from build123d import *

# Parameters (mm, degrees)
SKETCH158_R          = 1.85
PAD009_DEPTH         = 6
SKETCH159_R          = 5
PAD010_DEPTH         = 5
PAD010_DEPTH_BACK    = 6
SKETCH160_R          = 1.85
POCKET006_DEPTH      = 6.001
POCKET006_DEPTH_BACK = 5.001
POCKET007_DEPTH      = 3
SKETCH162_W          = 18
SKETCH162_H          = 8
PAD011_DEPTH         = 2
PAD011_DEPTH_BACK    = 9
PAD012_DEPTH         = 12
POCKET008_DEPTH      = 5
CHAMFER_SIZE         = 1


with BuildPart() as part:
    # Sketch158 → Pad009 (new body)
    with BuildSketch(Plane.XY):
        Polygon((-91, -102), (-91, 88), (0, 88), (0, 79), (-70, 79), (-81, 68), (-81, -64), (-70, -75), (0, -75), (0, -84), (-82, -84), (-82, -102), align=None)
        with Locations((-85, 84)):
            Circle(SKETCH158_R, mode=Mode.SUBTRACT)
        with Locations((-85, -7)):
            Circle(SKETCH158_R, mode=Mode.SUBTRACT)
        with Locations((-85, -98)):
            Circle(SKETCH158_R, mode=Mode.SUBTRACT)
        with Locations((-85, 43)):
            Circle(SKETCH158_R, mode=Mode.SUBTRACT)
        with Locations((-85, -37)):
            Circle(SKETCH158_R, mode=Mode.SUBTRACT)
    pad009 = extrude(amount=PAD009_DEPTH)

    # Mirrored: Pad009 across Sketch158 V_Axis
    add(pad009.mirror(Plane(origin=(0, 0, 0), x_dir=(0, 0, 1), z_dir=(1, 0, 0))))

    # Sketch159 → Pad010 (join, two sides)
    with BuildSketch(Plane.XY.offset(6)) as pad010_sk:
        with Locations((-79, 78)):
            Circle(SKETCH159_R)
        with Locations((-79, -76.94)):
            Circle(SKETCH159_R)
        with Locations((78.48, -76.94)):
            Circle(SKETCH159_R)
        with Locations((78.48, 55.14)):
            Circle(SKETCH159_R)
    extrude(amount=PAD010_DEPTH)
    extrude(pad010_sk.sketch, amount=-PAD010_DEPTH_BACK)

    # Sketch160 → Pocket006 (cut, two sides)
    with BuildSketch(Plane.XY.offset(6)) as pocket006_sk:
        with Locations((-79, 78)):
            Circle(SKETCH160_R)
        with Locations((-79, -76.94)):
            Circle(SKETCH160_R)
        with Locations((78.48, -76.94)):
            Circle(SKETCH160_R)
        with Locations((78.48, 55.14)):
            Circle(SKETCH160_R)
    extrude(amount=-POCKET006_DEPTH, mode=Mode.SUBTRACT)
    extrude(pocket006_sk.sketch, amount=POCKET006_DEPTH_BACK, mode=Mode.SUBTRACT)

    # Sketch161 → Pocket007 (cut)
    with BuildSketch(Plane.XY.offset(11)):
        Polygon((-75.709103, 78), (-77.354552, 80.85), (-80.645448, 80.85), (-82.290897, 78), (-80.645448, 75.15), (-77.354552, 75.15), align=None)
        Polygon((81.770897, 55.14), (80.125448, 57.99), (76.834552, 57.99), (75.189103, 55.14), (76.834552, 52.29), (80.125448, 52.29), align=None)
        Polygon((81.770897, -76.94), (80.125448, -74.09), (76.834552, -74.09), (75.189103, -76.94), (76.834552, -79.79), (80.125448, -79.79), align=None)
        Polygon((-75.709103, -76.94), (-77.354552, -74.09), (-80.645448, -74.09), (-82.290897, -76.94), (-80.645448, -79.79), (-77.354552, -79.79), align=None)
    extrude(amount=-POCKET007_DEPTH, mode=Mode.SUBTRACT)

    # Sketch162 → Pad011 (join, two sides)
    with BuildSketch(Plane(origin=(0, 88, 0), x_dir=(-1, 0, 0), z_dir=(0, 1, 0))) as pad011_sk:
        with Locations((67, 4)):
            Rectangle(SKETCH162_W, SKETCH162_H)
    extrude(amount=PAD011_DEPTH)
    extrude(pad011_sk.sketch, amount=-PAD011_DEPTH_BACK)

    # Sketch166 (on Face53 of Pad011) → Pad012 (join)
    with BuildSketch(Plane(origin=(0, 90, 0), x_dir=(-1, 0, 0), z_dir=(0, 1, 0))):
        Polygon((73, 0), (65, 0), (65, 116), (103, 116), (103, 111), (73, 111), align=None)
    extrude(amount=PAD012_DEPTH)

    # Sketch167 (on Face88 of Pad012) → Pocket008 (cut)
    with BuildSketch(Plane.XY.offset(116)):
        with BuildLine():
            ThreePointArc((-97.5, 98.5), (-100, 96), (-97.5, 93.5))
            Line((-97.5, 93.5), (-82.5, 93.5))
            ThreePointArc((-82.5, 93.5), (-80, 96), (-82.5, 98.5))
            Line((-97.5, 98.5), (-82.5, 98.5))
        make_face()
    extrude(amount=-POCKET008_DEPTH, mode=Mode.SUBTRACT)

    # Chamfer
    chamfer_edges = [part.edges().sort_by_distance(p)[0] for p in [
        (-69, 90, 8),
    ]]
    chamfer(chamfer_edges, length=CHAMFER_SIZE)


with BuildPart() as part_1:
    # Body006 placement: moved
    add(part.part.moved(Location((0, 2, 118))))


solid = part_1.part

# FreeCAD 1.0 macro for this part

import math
import FreeCAD as App
import Part
import Sketcher
from FreeCAD import Vector
Q = App.Units.Quantity


def edges_at(feature, points):
    """Names of the edges that pass closest to the given points."""
    edges = feature.Shape.Edges
    near = lambda p: min(range(len(edges)), key=lambda i: edges[i].distToShape(Part.Vertex(*p))[0])
    return sorted({f"Edge{near(p) + 1}" for p in points})

doc = App.newDocument("Part")
body = doc.addObject("PartDesign::Body", "Body")

sketch1 = doc.addObject("Sketcher::SketchObject", "Sketch")
body.addObject(sketch1)
sketch1.AttachmentSupport = (doc.XY_Plane, [""])
sketch1.MapMode = "FlatFace"
sketch1.addGeometry(Part.LineSegment(Vector(-91, 88, 0), Vector(-91, -102, 0)), False)
sketch1.addGeometry(Part.LineSegment(Vector(-91, -102, 0), Vector(-82, -102, 0)), False)
sketch1.addGeometry(Part.LineSegment(Vector(-82, -102, 0), Vector(-82, -84, 0)), False)
sketch1.addGeometry(Part.LineSegment(Vector(-82, -84, 0), Vector(0, -84, 0)), False)
sketch1.addGeometry(Part.LineSegment(Vector(0, -84, 0), Vector(0, -75, 0)), False)
sketch1.addGeometry(Part.LineSegment(Vector(0, -75, 0), Vector(-70, -75, 0)), False)
sketch1.addGeometry(Part.LineSegment(Vector(-70, -75, 0), Vector(-81, -64, 0)), False)
sketch1.addGeometry(Part.LineSegment(Vector(-81, -64, 0), Vector(-81, 68, 0)), False)
sketch1.addGeometry(Part.LineSegment(Vector(-81, 68, 0), Vector(-70, 79, 0)), False)
sketch1.addGeometry(Part.LineSegment(Vector(-70, 79, 0), Vector(0, 79, 0)), False)
sketch1.addGeometry(Part.LineSegment(Vector(0, 79, 0), Vector(0, 88, 0)), False)
sketch1.addGeometry(Part.LineSegment(Vector(0, 88, 0), Vector(-91, 88, 0)), False)
sketch1.addGeometry(Part.Circle(Vector(-85, -98, 0), Vector(0, 0, 1), 1.9), False)
sketch1.addGeometry(Part.Circle(Vector(-85, -37, 0), Vector(0, 0, 1), 1.9), False)
sketch1.addGeometry(Part.Circle(Vector(-85, -7, 0), Vector(0, 0, 1), 1.9), False)
sketch1.addGeometry(Part.Circle(Vector(-85, 43, 0), Vector(0, 0, 1), 1.9), False)
sketch1.addGeometry(Part.Circle(Vector(-85, 84, 0), Vector(0, 0, 1), 1.9), False)
sketch1.addConstraint(Sketcher.Constraint("Coincident", 0, 2, 1, 1))
sketch1.addConstraint(Sketcher.Constraint("Coincident", 1, 2, 2, 1))
sketch1.addConstraint(Sketcher.Constraint("Coincident", 2, 2, 3, 1))
sketch1.addConstraint(Sketcher.Constraint("Coincident", 3, 2, 4, 1))
sketch1.addConstraint(Sketcher.Constraint("Coincident", 4, 2, 5, 1))
sketch1.addConstraint(Sketcher.Constraint("Coincident", 5, 2, 6, 1))
sketch1.addConstraint(Sketcher.Constraint("Coincident", 6, 2, 7, 1))
sketch1.addConstraint(Sketcher.Constraint("Coincident", 7, 2, 8, 1))
sketch1.addConstraint(Sketcher.Constraint("Coincident", 8, 2, 9, 1))
sketch1.addConstraint(Sketcher.Constraint("Coincident", 9, 2, 10, 1))
sketch1.addConstraint(Sketcher.Constraint("Coincident", 10, 2, 11, 1))
sketch1.addConstraint(Sketcher.Constraint("Coincident", 11, 2, 0, 1))
sketch1.addConstraint(Sketcher.Constraint("Vertical", 0))
sketch1.addConstraint(Sketcher.Constraint("Horizontal", 1))
sketch1.addConstraint(Sketcher.Constraint("Vertical", 2))
sketch1.addConstraint(Sketcher.Constraint("Horizontal", 3))
sketch1.addConstraint(Sketcher.Constraint("Vertical", 4))
sketch1.addConstraint(Sketcher.Constraint("Horizontal", 5))
sketch1.addConstraint(Sketcher.Constraint("Vertical", 7))
sketch1.addConstraint(Sketcher.Constraint("Horizontal", 9))
sketch1.addConstraint(Sketcher.Constraint("Vertical", 10))
sketch1.addConstraint(Sketcher.Constraint("Horizontal", 11))
sketch1.addConstraint(Sketcher.Constraint("Equal", 12, 13))
sketch1.addConstraint(Sketcher.Constraint("Equal", 13, 14))
sketch1.addConstraint(Sketcher.Constraint("Equal", 14, 15))
sketch1.addConstraint(Sketcher.Constraint("Equal", 15, 16))
sketch1.addConstraint(Sketcher.Constraint("PointOnObject", 3, 2, -2))
sketch1.addConstraint(Sketcher.Constraint("PointOnObject", 9, 2, -2))
sketch1.addConstraint(Sketcher.Constraint("Perpendicular", 6, 8))
sketch1.addConstraint(Sketcher.Constraint("Vertical", 12, 3, 13, 3))
sketch1.addConstraint(Sketcher.Constraint("Vertical", 13, 3, 14, 3))
sketch1.addConstraint(Sketcher.Constraint("Vertical", 14, 3, 15, 3))
sketch1.addConstraint(Sketcher.Constraint("Vertical", 15, 3, 16, 3))
sketch1.addConstraint(Sketcher.Constraint("Vertical", 5, 2, 8, 2))
sketch1.addConstraint(Sketcher.Constraint("Equal", 1, 4))
sketch1.addConstraint(Sketcher.Constraint("Equal", 4, 10))
sketch1.addConstraint(Sketcher.Constraint("Equal", 6, 8))
sketch1.addConstraint(Sketcher.Constraint("Diameter", 12, 3.7))
sketch1.addConstraint(Sketcher.Constraint("DistanceX", 1, 1, 1, 2, 9.0))
sketch1.addConstraint(Sketcher.Constraint("DistanceX", 3, 1, 3, 2, 82.0))
sketch1.addConstraint(Sketcher.Constraint("DistanceX", 5, 2, 5, 1, 70.0))
sketch1.addConstraint(Sketcher.Constraint("DistanceY", 0, 2, 0, 1, 190.0))
sketch1.addConstraint(Sketcher.Constraint("DistanceY", 2, 1, 2, 2, 18.0))
sketch1.addConstraint(Sketcher.Constraint("DistanceY", 7, 1, 7, 2, 132.0))
sketch1.addConstraint(Sketcher.Constraint("DistanceX", 12, 3, -1, 1, 85.0))
sketch1.addConstraint(Sketcher.Constraint("DistanceY", 12, 3, -1, 1, 98.0))
sketch1.addConstraint(Sketcher.Constraint("DistanceY", 13, 3, -1, 1, 37.0))
sketch1.addConstraint(Sketcher.Constraint("DistanceY", 14, 3, -1, 1, 7.0))
sketch1.addConstraint(Sketcher.Constraint("DistanceY", -1, 1, 15, 3, 43.0))
sketch1.addConstraint(Sketcher.Constraint("DistanceY", -1, 1, 16, 3, 84.0))
sketch1.addConstraint(Sketcher.Constraint("DistanceY", 0, 2, -1, 1, 102.0))
pad1 = doc.addObject("PartDesign::Pad", "Pad")
body.addObject(pad1)
pad1.Profile = sketch1
pad1.Length = 6
doc.recompute()

mirrored = doc.addObject("PartDesign::Mirrored", "Mirrored")
body.addObject(mirrored)
mirrored.Originals = [pad1]
mirrored.MirrorPlane = (doc.YZ_Plane, [""])
body.Tip = mirrored

sketch2 = doc.addObject("Sketcher::SketchObject", "Sketch001")
body.addObject(sketch2)
sketch2.AttachmentSupport = (doc.XY_Plane, [""])
sketch2.MapMode = "FlatFace"
sketch2.AttachmentOffset = App.Placement(Vector(0, 0, 6), App.Rotation())
sketch2.addGeometry(Part.Circle(Vector(-79, 78, 0), Vector(0, 0, 1), 5), False)
sketch2.addGeometry(Part.Circle(Vector(-79, -77, 0), Vector(0, 0, 1), 5), False)
sketch2.addGeometry(Part.Circle(Vector(78, -77, 0), Vector(0, 0, 1), 5), False)
sketch2.addGeometry(Part.Circle(Vector(78, 55, 0), Vector(0, 0, 1), 5), False)
sketch2.addConstraint(Sketcher.Constraint("Equal", 0, 1))
sketch2.addConstraint(Sketcher.Constraint("Equal", 1, 2))
sketch2.addConstraint(Sketcher.Constraint("Equal", 2, 3))
sketch2.addConstraint(Sketcher.Constraint("Horizontal", 1, 3, 2, 3))
sketch2.addConstraint(Sketcher.Constraint("Vertical", 0, 3, 1, 3))
sketch2.addConstraint(Sketcher.Constraint("Vertical", 2, 3, 3, 3))
sketch2.addConstraint(Sketcher.Constraint("Diameter", 0, 10.0))
sketch2.addConstraint(Sketcher.Constraint("DistanceX", 0, 3, -1, 1, 79.0))
sketch2.addConstraint(Sketcher.Constraint("DistanceY", -1, 1, 0, 3, 78.0))
sketch2.addConstraint(Sketcher.Constraint("DistanceY", 1, 3, -1, 1, 76.94))
sketch2.addConstraint(Sketcher.Constraint("DistanceX", -1, 1, 2, 3, 78.48))
sketch2.addConstraint(Sketcher.Constraint("DistanceY", -1, 1, 3, 3, 55.14))
pad2 = doc.addObject("PartDesign::Pad", "Pad001")
body.addObject(pad2)
pad2.Profile = sketch2
pad2.Type = "TwoLengths"
pad2.Length = 5
pad2.Length2 = 6

sketch3 = doc.addObject("Sketcher::SketchObject", "Sketch002")
body.addObject(sketch3)
sketch3.AttachmentSupport = (doc.XY_Plane, [""])
sketch3.MapMode = "FlatFace"
sketch3.AttachmentOffset = App.Placement(Vector(0, 0, 6), App.Rotation())
sketch3.addGeometry(Part.Circle(Vector(-79, 78, 0), Vector(0, 0, 1), 1.9), False)
sketch3.addGeometry(Part.Circle(Vector(-79, -76.9, 0), Vector(0, 0, 1), 1.9), False)
sketch3.addGeometry(Part.Circle(Vector(78.5, -76.9, 0), Vector(0, 0, 1), 1.9), False)
sketch3.addGeometry(Part.Circle(Vector(78.5, 55.1, 0), Vector(0, 0, 1), 1.9), False)
sketch3.addConstraint(Sketcher.Constraint("Equal", 0, 1))
sketch3.addConstraint(Sketcher.Constraint("Equal", 1, 2))
sketch3.addConstraint(Sketcher.Constraint("Equal", 2, 3))
sketch3.addConstraint(Sketcher.Constraint("Horizontal", 1, 3, 2, 3))
sketch3.addConstraint(Sketcher.Constraint("Vertical", 0, 3, 1, 3))
sketch3.addConstraint(Sketcher.Constraint("Vertical", 2, 3, 3, 3))
sketch3.addConstraint(Sketcher.Constraint("Diameter", 0, 3.7))
sketch3.addConstraint(Sketcher.Constraint("DistanceX", 0, 3, -1, 1, 79.0))
sketch3.addConstraint(Sketcher.Constraint("DistanceY", -1, 1, 0, 3, 78.0))
sketch3.addConstraint(Sketcher.Constraint("DistanceY", 1, 3, -1, 1, 76.94))
sketch3.addConstraint(Sketcher.Constraint("DistanceX", -1, 1, 2, 3, 78.48))
sketch3.addConstraint(Sketcher.Constraint("DistanceY", -1, 1, 3, 3, 55.14))
pocket1 = doc.addObject("PartDesign::Pocket", "Pocket")
body.addObject(pocket1)
pocket1.Profile = sketch3
pocket1.Type = "ThroughAll"
pocket1.Midplane = True

sketch4 = doc.addObject("Sketcher::SketchObject", "Sketch003")
body.addObject(sketch4)
sketch4.AttachmentSupport = (doc.XY_Plane, [""])
sketch4.MapMode = "FlatFace"
sketch4.AttachmentOffset = App.Placement(Vector(0, 0, 11), App.Rotation())
sketch4.addGeometry(Part.LineSegment(Vector(-75.7, 78, 0), Vector(-77.4, 80.8, 0)), False)
sketch4.addGeometry(Part.LineSegment(Vector(-77.4, 80.8, 0), Vector(-80.6, 80.8, 0)), False)
sketch4.addGeometry(Part.LineSegment(Vector(-80.6, 80.8, 0), Vector(-82.3, 78, 0)), False)
sketch4.addGeometry(Part.LineSegment(Vector(-82.3, 78, 0), Vector(-80.6, 75.2, 0)), False)
sketch4.addGeometry(Part.LineSegment(Vector(-80.6, 75.2, 0), Vector(-77.4, 75.2, 0)), False)
sketch4.addGeometry(Part.LineSegment(Vector(-77.4, 75.2, 0), Vector(-75.7, 78, 0)), False)
sketch4.addGeometry(Part.LineSegment(Vector(81.8, 55.1, 0), Vector(80.1, 58, 0)), False)
sketch4.addGeometry(Part.LineSegment(Vector(80.1, 58, 0), Vector(76.8, 58, 0)), False)
sketch4.addGeometry(Part.LineSegment(Vector(76.8, 58, 0), Vector(75.2, 55.1, 0)), False)
sketch4.addGeometry(Part.LineSegment(Vector(75.2, 55.1, 0), Vector(76.8, 52.3, 0)), False)
sketch4.addGeometry(Part.LineSegment(Vector(76.8, 52.3, 0), Vector(80.1, 52.3, 0)), False)
sketch4.addGeometry(Part.LineSegment(Vector(80.1, 52.3, 0), Vector(81.8, 55.1, 0)), False)
sketch4.addGeometry(Part.LineSegment(Vector(81.8, -76.9, 0), Vector(80.1, -74.1, 0)), False)
sketch4.addGeometry(Part.LineSegment(Vector(80.1, -74.1, 0), Vector(76.8, -74.1, 0)), False)
sketch4.addGeometry(Part.LineSegment(Vector(76.8, -74.1, 0), Vector(75.2, -76.9, 0)), False)
sketch4.addGeometry(Part.LineSegment(Vector(75.2, -76.9, 0), Vector(76.8, -79.8, 0)), False)
sketch4.addGeometry(Part.LineSegment(Vector(76.8, -79.8, 0), Vector(80.1, -79.8, 0)), False)
sketch4.addGeometry(Part.LineSegment(Vector(80.1, -79.8, 0), Vector(81.8, -76.9, 0)), False)
sketch4.addGeometry(Part.LineSegment(Vector(-75.7, -76.9, 0), Vector(-77.4, -74.1, 0)), False)
sketch4.addGeometry(Part.LineSegment(Vector(-77.4, -74.1, 0), Vector(-80.6, -74.1, 0)), False)
sketch4.addGeometry(Part.LineSegment(Vector(-80.6, -74.1, 0), Vector(-82.3, -76.9, 0)), False)
sketch4.addGeometry(Part.LineSegment(Vector(-82.3, -76.9, 0), Vector(-80.6, -79.8, 0)), False)
sketch4.addGeometry(Part.LineSegment(Vector(-80.6, -79.8, 0), Vector(-77.4, -79.8, 0)), False)
sketch4.addGeometry(Part.LineSegment(Vector(-77.4, -79.8, 0), Vector(-75.7, -76.9, 0)), False)
sketch4.addConstraint(Sketcher.Constraint("Coincident", 0, 2, 1, 1))
sketch4.addConstraint(Sketcher.Constraint("Coincident", 1, 2, 2, 1))
sketch4.addConstraint(Sketcher.Constraint("Coincident", 2, 2, 3, 1))
sketch4.addConstraint(Sketcher.Constraint("Coincident", 3, 2, 4, 1))
sketch4.addConstraint(Sketcher.Constraint("Coincident", 4, 2, 5, 1))
sketch4.addConstraint(Sketcher.Constraint("Coincident", 5, 2, 0, 1))
sketch4.addConstraint(Sketcher.Constraint("Coincident", 6, 2, 7, 1))
sketch4.addConstraint(Sketcher.Constraint("Coincident", 7, 2, 8, 1))
sketch4.addConstraint(Sketcher.Constraint("Coincident", 8, 2, 9, 1))
sketch4.addConstraint(Sketcher.Constraint("Coincident", 9, 2, 10, 1))
sketch4.addConstraint(Sketcher.Constraint("Coincident", 10, 2, 11, 1))
sketch4.addConstraint(Sketcher.Constraint("Coincident", 11, 2, 6, 1))
sketch4.addConstraint(Sketcher.Constraint("Coincident", 12, 2, 13, 1))
sketch4.addConstraint(Sketcher.Constraint("Coincident", 13, 2, 14, 1))
sketch4.addConstraint(Sketcher.Constraint("Coincident", 14, 2, 15, 1))
sketch4.addConstraint(Sketcher.Constraint("Coincident", 15, 2, 16, 1))
sketch4.addConstraint(Sketcher.Constraint("Coincident", 16, 2, 17, 1))
sketch4.addConstraint(Sketcher.Constraint("Coincident", 17, 2, 12, 1))
sketch4.addConstraint(Sketcher.Constraint("Coincident", 18, 2, 19, 1))
sketch4.addConstraint(Sketcher.Constraint("Coincident", 19, 2, 20, 1))
sketch4.addConstraint(Sketcher.Constraint("Coincident", 20, 2, 21, 1))
sketch4.addConstraint(Sketcher.Constraint("Coincident", 21, 2, 22, 1))
sketch4.addConstraint(Sketcher.Constraint("Coincident", 22, 2, 23, 1))
sketch4.addConstraint(Sketcher.Constraint("Coincident", 23, 2, 18, 1))
sketch4.addConstraint(Sketcher.Constraint("Horizontal", 1))
sketch4.addConstraint(Sketcher.Constraint("Horizontal", 4))
sketch4.addConstraint(Sketcher.Constraint("Horizontal", 7))
sketch4.addConstraint(Sketcher.Constraint("Horizontal", 10))
sketch4.addConstraint(Sketcher.Constraint("Horizontal", 13))
sketch4.addConstraint(Sketcher.Constraint("Horizontal", 16))
sketch4.addConstraint(Sketcher.Constraint("Horizontal", 19))
sketch4.addConstraint(Sketcher.Constraint("Horizontal", 22))
sketch4.addConstraint(Sketcher.Constraint("Parallel", 0, 3))
sketch4.addConstraint(Sketcher.Constraint("Parallel", 2, 5))
sketch4.addConstraint(Sketcher.Constraint("Parallel", 3, 6))
sketch4.addConstraint(Sketcher.Constraint("Parallel", 5, 8))
sketch4.addConstraint(Sketcher.Constraint("Parallel", 6, 9))
sketch4.addConstraint(Sketcher.Constraint("Parallel", 8, 11))
sketch4.addConstraint(Sketcher.Constraint("Parallel", 9, 12))
sketch4.addConstraint(Sketcher.Constraint("Parallel", 11, 14))
sketch4.addConstraint(Sketcher.Constraint("Parallel", 12, 15))
sketch4.addConstraint(Sketcher.Constraint("Parallel", 14, 17))
sketch4.addConstraint(Sketcher.Constraint("Parallel", 15, 18))
sketch4.addConstraint(Sketcher.Constraint("Parallel", 17, 20))
sketch4.addConstraint(Sketcher.Constraint("Parallel", 18, 21))
sketch4.addConstraint(Sketcher.Constraint("Parallel", 20, 23))
sketch4.addConstraint(Sketcher.Constraint("Horizontal", 2, 2, 5, 2))
sketch4.addConstraint(Sketcher.Constraint("Horizontal", 8, 2, 11, 2))
sketch4.addConstraint(Sketcher.Constraint("Horizontal", 14, 2, 17, 2))
sketch4.addConstraint(Sketcher.Constraint("Horizontal", 13, 2, 18, 2))
sketch4.addConstraint(Sketcher.Constraint("Horizontal", 17, 2, 20, 2))
sketch4.addConstraint(Sketcher.Constraint("Horizontal", 16, 2, 21, 2))
sketch4.addConstraint(Sketcher.Constraint("Horizontal", 20, 2, 23, 2))
sketch4.addConstraint(Sketcher.Constraint("Vertical", 1, 2, 3, 2))
sketch4.addConstraint(Sketcher.Constraint("Vertical", 0, 2, 4, 2))
sketch4.addConstraint(Sketcher.Constraint("Vertical", 7, 2, 9, 2))
sketch4.addConstraint(Sketcher.Constraint("Vertical", 10, 2, 12, 2))
sketch4.addConstraint(Sketcher.Constraint("Vertical", 9, 2, 13, 2))
sketch4.addConstraint(Sketcher.Constraint("Vertical", 8, 2, 14, 2))
sketch4.addConstraint(Sketcher.Constraint("Vertical", 13, 2, 15, 2))
sketch4.addConstraint(Sketcher.Constraint("Vertical", 4, 2, 18, 2))
sketch4.addConstraint(Sketcher.Constraint("Vertical", 3, 2, 19, 2))
sketch4.addConstraint(Sketcher.Constraint("Vertical", 2, 2, 20, 2))
sketch4.addConstraint(Sketcher.Constraint("Equal", 4, 7))
sketch4.addConstraint(Sketcher.Constraint("Angle", 0, Q("120.000011 deg")))
sketch4.addConstraint(Sketcher.Constraint("DistanceY", -1, 1, 2, 2, 78.0))
sketch4.addConstraint(Sketcher.Constraint("DistanceY", 3, 2, 1, 2, 5.7))
sketch4.addConstraint(Sketcher.Constraint("DistanceY", -1, 1, 6, 2, 57.99))
sketch4.addConstraint(Sketcher.Constraint("DistanceY", 12, 2, -1, 1, 74.09))
sketch4.addConstraint(Sketcher.Constraint("DistanceX", 4, 2, 6, 2, 157.48))
sketch4.addConstraint(Sketcher.Constraint("DistanceX", 1, 2, 1, 1, 3.290896))
sketch4.addConstraint(Sketcher.Constraint("DistanceX", 0, 2, -1, 1, 77.354552))
pocket2 = doc.addObject("PartDesign::Pocket", "Pocket001")
body.addObject(pocket2)
pocket2.Profile = sketch4
pocket2.Length = 3

sketch5 = doc.addObject("Sketcher::SketchObject", "Sketch004")
body.addObject(sketch5)
sketch5.AttachmentSupport = (doc.XZ_Plane, [""])
sketch5.MapMode = "FlatFace"
sketch5.AttachmentOffset = App.Placement(Vector(0, 0, -88), App.Rotation())
sketch5.addGeometry(Part.LineSegment(Vector(-58, 8, 0), Vector(-58, 0, 0)), False)
sketch5.addGeometry(Part.LineSegment(Vector(-58, 0, 0), Vector(-76, 0, 0)), False)
sketch5.addGeometry(Part.LineSegment(Vector(-76, 0, 0), Vector(-76, 8, 0)), False)
sketch5.addGeometry(Part.LineSegment(Vector(-76, 8, 0), Vector(-58, 8, 0)), False)
sketch5.addConstraint(Sketcher.Constraint("Coincident", 0, 2, 1, 1))
sketch5.addConstraint(Sketcher.Constraint("Coincident", 1, 2, 2, 1))
sketch5.addConstraint(Sketcher.Constraint("Coincident", 2, 2, 3, 1))
sketch5.addConstraint(Sketcher.Constraint("Coincident", 3, 2, 0, 1))
sketch5.addConstraint(Sketcher.Constraint("Vertical", 0))
sketch5.addConstraint(Sketcher.Constraint("Horizontal", 1))
sketch5.addConstraint(Sketcher.Constraint("Vertical", 2))
sketch5.addConstraint(Sketcher.Constraint("Horizontal", 3))
sketch5.addConstraint(Sketcher.Constraint("PointOnObject", 0, 2, -1))
sketch5.addConstraint(Sketcher.Constraint("DistanceX", 1, 2, 1, 1, 18.0))
sketch5.addConstraint(Sketcher.Constraint("DistanceY", 0, 2, 0, 1, 8.0))
sketch5.addConstraint(Sketcher.Constraint("DistanceX", 0, 2, -1, 1, 58.0))
pad3 = doc.addObject("PartDesign::Pad", "Pad002")
body.addObject(pad3)
pad3.Profile = sketch5
pad3.Type = "TwoLengths"
pad3.Length = 2
pad3.Length2 = 9
pad3.Reversed = True

sketch6 = doc.addObject("Sketcher::SketchObject", "Sketch005")
body.addObject(sketch6)
sketch6.AttachmentSupport = (doc.XZ_Plane, [""])
sketch6.MapMode = "FlatFace"
sketch6.AttachmentOffset = App.Placement(Vector(0, 0, -90), App.Rotation())
sketch6.addGeometry(Part.LineSegment(Vector(-65, 0, 0), Vector(-73, 0, 0)), False)
sketch6.addGeometry(Part.LineSegment(Vector(-73, 0, 0), Vector(-73, 111, 0)), False)
sketch6.addGeometry(Part.LineSegment(Vector(-73, 111, 0), Vector(-103, 111, 0)), False)
sketch6.addGeometry(Part.LineSegment(Vector(-103, 111, 0), Vector(-103, 116, 0)), False)
sketch6.addGeometry(Part.LineSegment(Vector(-103, 116, 0), Vector(-65, 116, 0)), False)
sketch6.addGeometry(Part.LineSegment(Vector(-65, 116, 0), Vector(-65, 0, 0)), False)
sketch6.addConstraint(Sketcher.Constraint("Coincident", 0, 2, 1, 1))
sketch6.addConstraint(Sketcher.Constraint("Coincident", 1, 2, 2, 1))
sketch6.addConstraint(Sketcher.Constraint("Coincident", 2, 2, 3, 1))
sketch6.addConstraint(Sketcher.Constraint("Coincident", 3, 2, 4, 1))
sketch6.addConstraint(Sketcher.Constraint("Coincident", 4, 2, 5, 1))
sketch6.addConstraint(Sketcher.Constraint("Coincident", 5, 2, 0, 1))
sketch6.addConstraint(Sketcher.Constraint("Horizontal", 0))
sketch6.addConstraint(Sketcher.Constraint("Vertical", 1))
sketch6.addConstraint(Sketcher.Constraint("Horizontal", 2))
sketch6.addConstraint(Sketcher.Constraint("Vertical", 3))
sketch6.addConstraint(Sketcher.Constraint("Horizontal", 4))
sketch6.addConstraint(Sketcher.Constraint("Vertical", 5))
sketch6.addConstraint(Sketcher.Constraint("PointOnObject", 0, 2, -1))
sketch6.addConstraint(Sketcher.Constraint("DistanceX", 0, 2, 0, 1, 8.0))
sketch6.addConstraint(Sketcher.Constraint("DistanceX", 2, 2, 2, 1, 30.0))
sketch6.addConstraint(Sketcher.Constraint("DistanceY", 1, 1, 1, 2, 111.0))
sketch6.addConstraint(Sketcher.Constraint("DistanceY", 3, 1, 3, 2, 5.0))
sketch6.addConstraint(Sketcher.Constraint("DistanceX", 0, 2, -1, 1, 73.0))
pad4 = doc.addObject("PartDesign::Pad", "Pad003")
body.addObject(pad4)
pad4.Profile = sketch6
pad4.Length = 12
pad4.Reversed = True

sketch7 = doc.addObject("Sketcher::SketchObject", "Sketch006")
body.addObject(sketch7)
sketch7.AttachmentSupport = (doc.XY_Plane, [""])
sketch7.MapMode = "FlatFace"
sketch7.AttachmentOffset = App.Placement(Vector(0, 0, 116), App.Rotation())
sketch7.addGeometry(Part.ArcOfCircle(Part.Circle(Vector(-97.5, 96, 0), Vector(0, 0, 1), 2.5), math.radians(90), math.radians(270)), False)
sketch7.addGeometry(Part.LineSegment(Vector(-97.5, 93.5, 0), Vector(-82.5, 93.5, 0)), False)
sketch7.addGeometry(Part.ArcOfCircle(Part.Circle(Vector(-82.5, 96, 0), Vector(0, 0, 1), 2.5), math.radians(-90), math.radians(90)), False)
sketch7.addGeometry(Part.LineSegment(Vector(-82.5, 98.5, 0), Vector(-97.5, 98.5, 0)), False)
sketch7.addConstraint(Sketcher.Constraint("Tangent", 0, 2, 1, 1))
sketch7.addConstraint(Sketcher.Constraint("Tangent", 1, 2, 2, 1))
sketch7.addConstraint(Sketcher.Constraint("Tangent", 2, 2, 3, 1))
sketch7.addConstraint(Sketcher.Constraint("Tangent", 3, 2, 0, 1))
sketch7.addConstraint(Sketcher.Constraint("Horizontal", 1))
sketch7.addConstraint(Sketcher.Constraint("Horizontal", 3))
sketch7.addConstraint(Sketcher.Constraint("Radius", 0, 2.5))
sketch7.addConstraint(Sketcher.Constraint("DistanceX", 1, 1, 1, 2, 15.0))
sketch7.addConstraint(Sketcher.Constraint("DistanceY", -1, 1, 0, 3, 96.0))
sketch7.addConstraint(Sketcher.Constraint("DistanceX", 0, 3, -1, 1, 97.5))
pocket3 = doc.addObject("PartDesign::Pocket", "Pocket002")
body.addObject(pocket3)
pocket3.Profile = sketch7
pocket3.Length = 5
doc.recompute()

chamfer = doc.addObject("PartDesign::Chamfer", "Chamfer")
body.addObject(chamfer)
chamfer.Base = (pocket3, edges_at(pocket3, [(-69, 90, 8)]))
chamfer.Size = 1
body2 = doc.addObject("PartDesign::Body", "Body001")
doc.recompute()

body.Placement = App.Placement(Vector(0, 2, 118), App.Rotation(Vector(0, 0, 1), 0))
boolean = doc.addObject("PartDesign::Boolean", "Boolean")
body2.addObject(boolean)
boolean.Type = "Fuse"
boolean.addObjects([body])

doc.recompute()
